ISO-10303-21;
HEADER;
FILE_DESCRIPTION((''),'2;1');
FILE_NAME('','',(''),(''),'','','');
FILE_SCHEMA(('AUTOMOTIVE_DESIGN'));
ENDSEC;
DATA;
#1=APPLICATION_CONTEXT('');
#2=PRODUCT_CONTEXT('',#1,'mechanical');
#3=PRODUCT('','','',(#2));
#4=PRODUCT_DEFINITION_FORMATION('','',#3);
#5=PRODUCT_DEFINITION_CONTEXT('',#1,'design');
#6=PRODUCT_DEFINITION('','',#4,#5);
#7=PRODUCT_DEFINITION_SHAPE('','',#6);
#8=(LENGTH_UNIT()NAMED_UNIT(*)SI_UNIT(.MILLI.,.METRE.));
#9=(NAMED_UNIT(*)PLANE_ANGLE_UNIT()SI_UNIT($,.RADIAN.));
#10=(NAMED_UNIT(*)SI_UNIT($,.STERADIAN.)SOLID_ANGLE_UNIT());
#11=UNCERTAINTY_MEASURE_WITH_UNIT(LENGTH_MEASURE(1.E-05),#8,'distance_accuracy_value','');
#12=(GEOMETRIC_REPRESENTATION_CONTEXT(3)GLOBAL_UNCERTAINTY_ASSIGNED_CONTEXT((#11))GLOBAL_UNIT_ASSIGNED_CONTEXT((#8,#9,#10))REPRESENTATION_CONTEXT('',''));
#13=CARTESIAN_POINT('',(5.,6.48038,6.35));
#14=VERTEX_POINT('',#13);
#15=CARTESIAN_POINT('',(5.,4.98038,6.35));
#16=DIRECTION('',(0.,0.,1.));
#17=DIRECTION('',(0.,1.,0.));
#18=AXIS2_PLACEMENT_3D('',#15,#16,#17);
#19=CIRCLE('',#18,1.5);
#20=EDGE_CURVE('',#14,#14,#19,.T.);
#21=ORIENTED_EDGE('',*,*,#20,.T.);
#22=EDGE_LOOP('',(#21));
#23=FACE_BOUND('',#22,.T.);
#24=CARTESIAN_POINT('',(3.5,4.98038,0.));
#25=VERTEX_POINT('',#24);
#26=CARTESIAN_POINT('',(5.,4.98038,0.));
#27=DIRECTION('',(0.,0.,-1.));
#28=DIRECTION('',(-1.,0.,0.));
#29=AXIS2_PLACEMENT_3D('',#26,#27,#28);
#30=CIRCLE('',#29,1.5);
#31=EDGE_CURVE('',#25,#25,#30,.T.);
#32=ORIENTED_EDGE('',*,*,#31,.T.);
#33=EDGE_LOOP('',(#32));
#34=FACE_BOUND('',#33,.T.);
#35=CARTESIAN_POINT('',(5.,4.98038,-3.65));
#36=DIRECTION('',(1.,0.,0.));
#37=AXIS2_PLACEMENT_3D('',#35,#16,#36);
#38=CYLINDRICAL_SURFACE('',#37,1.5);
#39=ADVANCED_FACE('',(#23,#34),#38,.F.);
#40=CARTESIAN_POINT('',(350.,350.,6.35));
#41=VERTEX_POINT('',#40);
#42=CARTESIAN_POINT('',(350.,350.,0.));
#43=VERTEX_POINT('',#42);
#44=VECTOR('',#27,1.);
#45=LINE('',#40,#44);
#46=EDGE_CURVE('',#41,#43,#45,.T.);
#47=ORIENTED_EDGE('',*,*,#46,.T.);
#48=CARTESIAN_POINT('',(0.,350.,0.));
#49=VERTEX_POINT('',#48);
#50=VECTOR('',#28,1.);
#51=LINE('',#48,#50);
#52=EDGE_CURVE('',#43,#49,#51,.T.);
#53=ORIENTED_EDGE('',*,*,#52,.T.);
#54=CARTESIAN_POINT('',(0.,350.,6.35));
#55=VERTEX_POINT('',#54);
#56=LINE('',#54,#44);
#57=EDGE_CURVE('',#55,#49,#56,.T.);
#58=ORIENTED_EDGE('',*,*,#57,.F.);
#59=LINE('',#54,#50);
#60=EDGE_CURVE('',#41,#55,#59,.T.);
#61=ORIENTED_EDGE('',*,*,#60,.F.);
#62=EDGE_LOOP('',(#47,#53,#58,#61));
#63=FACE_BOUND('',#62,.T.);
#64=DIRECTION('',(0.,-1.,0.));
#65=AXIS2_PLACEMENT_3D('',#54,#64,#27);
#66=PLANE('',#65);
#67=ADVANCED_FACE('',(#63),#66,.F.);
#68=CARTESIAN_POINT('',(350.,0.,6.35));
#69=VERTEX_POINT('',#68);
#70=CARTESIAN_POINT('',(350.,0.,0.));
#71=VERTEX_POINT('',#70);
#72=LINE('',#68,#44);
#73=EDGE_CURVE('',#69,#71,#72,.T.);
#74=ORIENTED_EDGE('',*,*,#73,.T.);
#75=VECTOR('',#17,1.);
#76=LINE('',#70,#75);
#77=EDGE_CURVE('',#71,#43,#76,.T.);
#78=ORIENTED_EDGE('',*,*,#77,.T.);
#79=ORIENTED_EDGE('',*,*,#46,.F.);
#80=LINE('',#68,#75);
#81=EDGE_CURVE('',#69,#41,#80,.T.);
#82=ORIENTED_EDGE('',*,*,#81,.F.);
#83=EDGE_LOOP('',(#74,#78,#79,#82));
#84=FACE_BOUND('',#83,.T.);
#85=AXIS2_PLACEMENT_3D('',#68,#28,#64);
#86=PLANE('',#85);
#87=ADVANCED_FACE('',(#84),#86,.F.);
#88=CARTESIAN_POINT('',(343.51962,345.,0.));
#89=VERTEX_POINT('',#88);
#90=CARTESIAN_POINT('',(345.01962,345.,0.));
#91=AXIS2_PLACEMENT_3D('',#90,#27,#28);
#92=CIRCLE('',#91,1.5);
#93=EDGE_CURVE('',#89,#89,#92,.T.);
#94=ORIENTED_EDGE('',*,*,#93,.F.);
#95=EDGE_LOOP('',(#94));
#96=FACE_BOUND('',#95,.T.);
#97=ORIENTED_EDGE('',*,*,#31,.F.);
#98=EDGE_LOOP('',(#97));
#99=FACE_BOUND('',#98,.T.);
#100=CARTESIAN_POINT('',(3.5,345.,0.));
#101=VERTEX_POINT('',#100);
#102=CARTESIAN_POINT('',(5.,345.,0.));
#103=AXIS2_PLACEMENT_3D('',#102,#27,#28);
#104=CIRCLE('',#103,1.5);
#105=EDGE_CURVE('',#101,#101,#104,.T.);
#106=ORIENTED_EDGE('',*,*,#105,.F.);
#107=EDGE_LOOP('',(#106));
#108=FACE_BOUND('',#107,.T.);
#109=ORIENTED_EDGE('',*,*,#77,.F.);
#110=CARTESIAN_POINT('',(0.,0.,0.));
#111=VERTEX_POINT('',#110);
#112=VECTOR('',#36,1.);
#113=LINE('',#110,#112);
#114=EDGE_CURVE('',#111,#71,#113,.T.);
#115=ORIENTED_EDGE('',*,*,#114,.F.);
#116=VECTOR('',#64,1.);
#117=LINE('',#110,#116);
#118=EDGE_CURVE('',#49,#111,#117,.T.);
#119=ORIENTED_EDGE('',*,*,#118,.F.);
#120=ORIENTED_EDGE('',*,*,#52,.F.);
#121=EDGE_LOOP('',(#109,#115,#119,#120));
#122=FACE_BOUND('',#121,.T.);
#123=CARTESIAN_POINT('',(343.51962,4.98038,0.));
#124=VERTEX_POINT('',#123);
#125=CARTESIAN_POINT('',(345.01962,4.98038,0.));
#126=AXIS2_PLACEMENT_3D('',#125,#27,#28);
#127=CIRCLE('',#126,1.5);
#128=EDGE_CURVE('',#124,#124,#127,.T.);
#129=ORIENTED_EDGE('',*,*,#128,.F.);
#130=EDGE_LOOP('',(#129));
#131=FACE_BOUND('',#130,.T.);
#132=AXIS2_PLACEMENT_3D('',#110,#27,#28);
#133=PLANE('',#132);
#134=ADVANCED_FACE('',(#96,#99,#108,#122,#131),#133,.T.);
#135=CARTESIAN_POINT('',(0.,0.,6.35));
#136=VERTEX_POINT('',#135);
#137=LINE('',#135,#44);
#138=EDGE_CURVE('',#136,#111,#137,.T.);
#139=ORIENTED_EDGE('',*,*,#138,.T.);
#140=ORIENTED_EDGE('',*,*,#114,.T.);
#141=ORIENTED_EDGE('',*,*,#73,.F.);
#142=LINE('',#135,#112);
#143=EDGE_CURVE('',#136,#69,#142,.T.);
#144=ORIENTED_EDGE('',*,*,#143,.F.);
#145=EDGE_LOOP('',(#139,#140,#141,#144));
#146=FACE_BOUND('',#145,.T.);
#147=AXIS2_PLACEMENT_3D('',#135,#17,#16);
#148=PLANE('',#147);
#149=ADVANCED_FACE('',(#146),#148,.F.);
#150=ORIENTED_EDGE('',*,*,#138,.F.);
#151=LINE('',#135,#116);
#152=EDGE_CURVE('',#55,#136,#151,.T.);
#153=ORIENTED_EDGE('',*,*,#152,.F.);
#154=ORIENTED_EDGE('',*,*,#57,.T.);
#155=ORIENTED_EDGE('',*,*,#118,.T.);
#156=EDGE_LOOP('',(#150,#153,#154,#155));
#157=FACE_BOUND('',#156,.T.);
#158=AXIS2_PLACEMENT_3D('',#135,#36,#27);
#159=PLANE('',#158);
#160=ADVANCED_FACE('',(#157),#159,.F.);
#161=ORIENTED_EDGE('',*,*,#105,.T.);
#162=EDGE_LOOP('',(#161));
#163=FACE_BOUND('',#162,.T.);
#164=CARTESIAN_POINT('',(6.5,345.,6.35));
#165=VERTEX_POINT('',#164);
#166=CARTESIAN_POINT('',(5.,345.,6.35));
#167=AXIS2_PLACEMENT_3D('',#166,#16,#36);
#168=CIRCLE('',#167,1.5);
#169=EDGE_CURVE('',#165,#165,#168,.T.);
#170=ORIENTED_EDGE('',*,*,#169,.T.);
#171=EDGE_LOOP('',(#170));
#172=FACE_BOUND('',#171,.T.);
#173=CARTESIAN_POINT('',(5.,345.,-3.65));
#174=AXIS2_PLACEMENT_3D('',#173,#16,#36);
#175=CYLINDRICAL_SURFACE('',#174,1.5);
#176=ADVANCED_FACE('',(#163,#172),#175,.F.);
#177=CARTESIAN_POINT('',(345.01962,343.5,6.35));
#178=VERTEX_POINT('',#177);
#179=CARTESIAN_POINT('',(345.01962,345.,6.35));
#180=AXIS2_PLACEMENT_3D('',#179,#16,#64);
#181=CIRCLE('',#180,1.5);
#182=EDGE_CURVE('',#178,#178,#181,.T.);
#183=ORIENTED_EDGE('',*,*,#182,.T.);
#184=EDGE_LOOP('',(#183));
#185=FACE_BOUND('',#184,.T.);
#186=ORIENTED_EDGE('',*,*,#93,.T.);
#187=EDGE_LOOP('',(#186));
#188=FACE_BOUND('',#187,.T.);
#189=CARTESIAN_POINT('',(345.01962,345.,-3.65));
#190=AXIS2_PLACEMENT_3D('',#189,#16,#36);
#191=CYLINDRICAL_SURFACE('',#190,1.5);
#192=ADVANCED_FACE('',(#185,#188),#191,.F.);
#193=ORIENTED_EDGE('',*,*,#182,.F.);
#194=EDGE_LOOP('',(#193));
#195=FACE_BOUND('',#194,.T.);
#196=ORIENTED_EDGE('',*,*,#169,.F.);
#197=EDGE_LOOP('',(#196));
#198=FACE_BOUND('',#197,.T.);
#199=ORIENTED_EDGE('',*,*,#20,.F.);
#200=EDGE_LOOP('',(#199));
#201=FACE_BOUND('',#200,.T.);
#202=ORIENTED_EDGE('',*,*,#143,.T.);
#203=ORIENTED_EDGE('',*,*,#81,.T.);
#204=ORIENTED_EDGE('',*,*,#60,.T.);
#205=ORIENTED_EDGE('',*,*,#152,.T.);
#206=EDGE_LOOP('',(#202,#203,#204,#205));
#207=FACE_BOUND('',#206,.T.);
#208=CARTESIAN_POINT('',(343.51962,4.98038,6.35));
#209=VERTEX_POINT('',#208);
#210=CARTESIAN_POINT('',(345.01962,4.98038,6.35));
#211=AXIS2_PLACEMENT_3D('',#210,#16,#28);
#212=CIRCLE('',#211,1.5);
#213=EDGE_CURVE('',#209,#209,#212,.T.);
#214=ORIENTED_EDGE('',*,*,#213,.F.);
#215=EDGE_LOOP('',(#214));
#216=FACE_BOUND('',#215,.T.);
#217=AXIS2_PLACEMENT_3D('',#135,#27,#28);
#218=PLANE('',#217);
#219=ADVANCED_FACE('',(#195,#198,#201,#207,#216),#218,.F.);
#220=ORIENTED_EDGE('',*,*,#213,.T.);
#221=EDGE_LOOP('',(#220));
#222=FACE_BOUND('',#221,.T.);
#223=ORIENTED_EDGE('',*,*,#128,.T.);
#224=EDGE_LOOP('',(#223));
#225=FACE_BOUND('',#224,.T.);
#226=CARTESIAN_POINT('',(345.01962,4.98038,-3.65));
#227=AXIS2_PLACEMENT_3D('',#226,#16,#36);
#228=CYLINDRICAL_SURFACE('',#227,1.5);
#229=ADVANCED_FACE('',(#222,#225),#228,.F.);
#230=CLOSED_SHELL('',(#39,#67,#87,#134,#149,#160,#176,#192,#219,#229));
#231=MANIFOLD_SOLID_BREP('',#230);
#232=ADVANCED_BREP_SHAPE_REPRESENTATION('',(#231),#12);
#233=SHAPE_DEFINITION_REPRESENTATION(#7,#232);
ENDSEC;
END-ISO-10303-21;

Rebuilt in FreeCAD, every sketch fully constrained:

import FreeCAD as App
import Part
import Sketcher
from FreeCAD import Vector

doc = App.newDocument("Part")
body = doc.addObject("PartDesign::Body", "Body")

sketch1 = body.newObject("Sketcher::SketchObject", "Sketch")
sketch1.AttachmentSupport = (doc.getObject("XY_Plane"), [""])
sketch1.MapMode = "FlatFace"
sketch1.addGeometry([
    Part.LineSegment(Vector(0, 350, 0), Vector(0, 0, 0)),
    Part.LineSegment(Vector(0, 0, 0), Vector(350, 0, 0)),
    Part.LineSegment(Vector(350, 0, 0), Vector(350, 350, 0)),
    Part.LineSegment(Vector(350, 350, 0), Vector(0, 350, 0)),
], False)
sketch1.addConstraint([
    Sketcher.Constraint("Coincident", 0, 2, 1, 1),
    Sketcher.Constraint("Coincident", 1, 2, 2, 1),
    Sketcher.Constraint("Coincident", 2, 2, 3, 1),
    Sketcher.Constraint("Coincident", 3, 2, 0, 1),
    Sketcher.Constraint("Vertical", 0),
    Sketcher.Constraint("Horizontal", 1),
    Sketcher.Constraint("Vertical", 2),
    Sketcher.Constraint("Horizontal", 3),
    Sketcher.Constraint("Coincident", 0, 2, -1, 1),
    Sketcher.Constraint("Equal", 3, 0),
    Sketcher.Constraint("DistanceX", 1, 1, 1, 2, 350.0),
])
pad1 = body.newObject("PartDesign::Pad", "Pad")
pad1.Profile = sketch1
pad1.Length = 6.35

sketch2 = body.newObject("Sketcher::SketchObject", "Sketch001")
sketch2.AttachmentSupport = (doc.getObject("XY_Plane"), [""])
sketch2.MapMode = "FlatFace"
sketch2.AttachmentOffset = App.Placement(Vector(0, 0, 6.35), App.Rotation())
sketch2.addGeometry(Part.Circle(Vector(5, 345, 0), Vector(0, 0, 1), 1.5), False)
sketch2.addConstraint([
    Sketcher.Constraint("Diameter", 0, 3.0),
    Sketcher.Constraint("DistanceX", -1, 1, 0, 3, 5.0),
    Sketcher.Constraint("DistanceY", -1, 1, 0, 3, 345.0),
])
pocket1 = body.newObject("PartDesign::Pocket", "Pocket")
pocket1.Profile = sketch2
pocket1.Length = 10
doc.recompute()

datumline = body.newObject("PartDesign::Line", "DatumLine")
datumline.Placement = App.Placement(Vector(175.00981, 174.99019, 0), App.Rotation(Vector(0, 0, 1), Vector(0, 0, 1)))
polarpattern = body.newObject("PartDesign::PolarPattern", "PolarPattern")
polarpattern.Originals = [pocket1]
polarpattern.Axis = (datumline, [""])
polarpattern.Angle = 360
polarpattern.Occurrences = 4
body.Tip = polarpattern

doc.recompute()
